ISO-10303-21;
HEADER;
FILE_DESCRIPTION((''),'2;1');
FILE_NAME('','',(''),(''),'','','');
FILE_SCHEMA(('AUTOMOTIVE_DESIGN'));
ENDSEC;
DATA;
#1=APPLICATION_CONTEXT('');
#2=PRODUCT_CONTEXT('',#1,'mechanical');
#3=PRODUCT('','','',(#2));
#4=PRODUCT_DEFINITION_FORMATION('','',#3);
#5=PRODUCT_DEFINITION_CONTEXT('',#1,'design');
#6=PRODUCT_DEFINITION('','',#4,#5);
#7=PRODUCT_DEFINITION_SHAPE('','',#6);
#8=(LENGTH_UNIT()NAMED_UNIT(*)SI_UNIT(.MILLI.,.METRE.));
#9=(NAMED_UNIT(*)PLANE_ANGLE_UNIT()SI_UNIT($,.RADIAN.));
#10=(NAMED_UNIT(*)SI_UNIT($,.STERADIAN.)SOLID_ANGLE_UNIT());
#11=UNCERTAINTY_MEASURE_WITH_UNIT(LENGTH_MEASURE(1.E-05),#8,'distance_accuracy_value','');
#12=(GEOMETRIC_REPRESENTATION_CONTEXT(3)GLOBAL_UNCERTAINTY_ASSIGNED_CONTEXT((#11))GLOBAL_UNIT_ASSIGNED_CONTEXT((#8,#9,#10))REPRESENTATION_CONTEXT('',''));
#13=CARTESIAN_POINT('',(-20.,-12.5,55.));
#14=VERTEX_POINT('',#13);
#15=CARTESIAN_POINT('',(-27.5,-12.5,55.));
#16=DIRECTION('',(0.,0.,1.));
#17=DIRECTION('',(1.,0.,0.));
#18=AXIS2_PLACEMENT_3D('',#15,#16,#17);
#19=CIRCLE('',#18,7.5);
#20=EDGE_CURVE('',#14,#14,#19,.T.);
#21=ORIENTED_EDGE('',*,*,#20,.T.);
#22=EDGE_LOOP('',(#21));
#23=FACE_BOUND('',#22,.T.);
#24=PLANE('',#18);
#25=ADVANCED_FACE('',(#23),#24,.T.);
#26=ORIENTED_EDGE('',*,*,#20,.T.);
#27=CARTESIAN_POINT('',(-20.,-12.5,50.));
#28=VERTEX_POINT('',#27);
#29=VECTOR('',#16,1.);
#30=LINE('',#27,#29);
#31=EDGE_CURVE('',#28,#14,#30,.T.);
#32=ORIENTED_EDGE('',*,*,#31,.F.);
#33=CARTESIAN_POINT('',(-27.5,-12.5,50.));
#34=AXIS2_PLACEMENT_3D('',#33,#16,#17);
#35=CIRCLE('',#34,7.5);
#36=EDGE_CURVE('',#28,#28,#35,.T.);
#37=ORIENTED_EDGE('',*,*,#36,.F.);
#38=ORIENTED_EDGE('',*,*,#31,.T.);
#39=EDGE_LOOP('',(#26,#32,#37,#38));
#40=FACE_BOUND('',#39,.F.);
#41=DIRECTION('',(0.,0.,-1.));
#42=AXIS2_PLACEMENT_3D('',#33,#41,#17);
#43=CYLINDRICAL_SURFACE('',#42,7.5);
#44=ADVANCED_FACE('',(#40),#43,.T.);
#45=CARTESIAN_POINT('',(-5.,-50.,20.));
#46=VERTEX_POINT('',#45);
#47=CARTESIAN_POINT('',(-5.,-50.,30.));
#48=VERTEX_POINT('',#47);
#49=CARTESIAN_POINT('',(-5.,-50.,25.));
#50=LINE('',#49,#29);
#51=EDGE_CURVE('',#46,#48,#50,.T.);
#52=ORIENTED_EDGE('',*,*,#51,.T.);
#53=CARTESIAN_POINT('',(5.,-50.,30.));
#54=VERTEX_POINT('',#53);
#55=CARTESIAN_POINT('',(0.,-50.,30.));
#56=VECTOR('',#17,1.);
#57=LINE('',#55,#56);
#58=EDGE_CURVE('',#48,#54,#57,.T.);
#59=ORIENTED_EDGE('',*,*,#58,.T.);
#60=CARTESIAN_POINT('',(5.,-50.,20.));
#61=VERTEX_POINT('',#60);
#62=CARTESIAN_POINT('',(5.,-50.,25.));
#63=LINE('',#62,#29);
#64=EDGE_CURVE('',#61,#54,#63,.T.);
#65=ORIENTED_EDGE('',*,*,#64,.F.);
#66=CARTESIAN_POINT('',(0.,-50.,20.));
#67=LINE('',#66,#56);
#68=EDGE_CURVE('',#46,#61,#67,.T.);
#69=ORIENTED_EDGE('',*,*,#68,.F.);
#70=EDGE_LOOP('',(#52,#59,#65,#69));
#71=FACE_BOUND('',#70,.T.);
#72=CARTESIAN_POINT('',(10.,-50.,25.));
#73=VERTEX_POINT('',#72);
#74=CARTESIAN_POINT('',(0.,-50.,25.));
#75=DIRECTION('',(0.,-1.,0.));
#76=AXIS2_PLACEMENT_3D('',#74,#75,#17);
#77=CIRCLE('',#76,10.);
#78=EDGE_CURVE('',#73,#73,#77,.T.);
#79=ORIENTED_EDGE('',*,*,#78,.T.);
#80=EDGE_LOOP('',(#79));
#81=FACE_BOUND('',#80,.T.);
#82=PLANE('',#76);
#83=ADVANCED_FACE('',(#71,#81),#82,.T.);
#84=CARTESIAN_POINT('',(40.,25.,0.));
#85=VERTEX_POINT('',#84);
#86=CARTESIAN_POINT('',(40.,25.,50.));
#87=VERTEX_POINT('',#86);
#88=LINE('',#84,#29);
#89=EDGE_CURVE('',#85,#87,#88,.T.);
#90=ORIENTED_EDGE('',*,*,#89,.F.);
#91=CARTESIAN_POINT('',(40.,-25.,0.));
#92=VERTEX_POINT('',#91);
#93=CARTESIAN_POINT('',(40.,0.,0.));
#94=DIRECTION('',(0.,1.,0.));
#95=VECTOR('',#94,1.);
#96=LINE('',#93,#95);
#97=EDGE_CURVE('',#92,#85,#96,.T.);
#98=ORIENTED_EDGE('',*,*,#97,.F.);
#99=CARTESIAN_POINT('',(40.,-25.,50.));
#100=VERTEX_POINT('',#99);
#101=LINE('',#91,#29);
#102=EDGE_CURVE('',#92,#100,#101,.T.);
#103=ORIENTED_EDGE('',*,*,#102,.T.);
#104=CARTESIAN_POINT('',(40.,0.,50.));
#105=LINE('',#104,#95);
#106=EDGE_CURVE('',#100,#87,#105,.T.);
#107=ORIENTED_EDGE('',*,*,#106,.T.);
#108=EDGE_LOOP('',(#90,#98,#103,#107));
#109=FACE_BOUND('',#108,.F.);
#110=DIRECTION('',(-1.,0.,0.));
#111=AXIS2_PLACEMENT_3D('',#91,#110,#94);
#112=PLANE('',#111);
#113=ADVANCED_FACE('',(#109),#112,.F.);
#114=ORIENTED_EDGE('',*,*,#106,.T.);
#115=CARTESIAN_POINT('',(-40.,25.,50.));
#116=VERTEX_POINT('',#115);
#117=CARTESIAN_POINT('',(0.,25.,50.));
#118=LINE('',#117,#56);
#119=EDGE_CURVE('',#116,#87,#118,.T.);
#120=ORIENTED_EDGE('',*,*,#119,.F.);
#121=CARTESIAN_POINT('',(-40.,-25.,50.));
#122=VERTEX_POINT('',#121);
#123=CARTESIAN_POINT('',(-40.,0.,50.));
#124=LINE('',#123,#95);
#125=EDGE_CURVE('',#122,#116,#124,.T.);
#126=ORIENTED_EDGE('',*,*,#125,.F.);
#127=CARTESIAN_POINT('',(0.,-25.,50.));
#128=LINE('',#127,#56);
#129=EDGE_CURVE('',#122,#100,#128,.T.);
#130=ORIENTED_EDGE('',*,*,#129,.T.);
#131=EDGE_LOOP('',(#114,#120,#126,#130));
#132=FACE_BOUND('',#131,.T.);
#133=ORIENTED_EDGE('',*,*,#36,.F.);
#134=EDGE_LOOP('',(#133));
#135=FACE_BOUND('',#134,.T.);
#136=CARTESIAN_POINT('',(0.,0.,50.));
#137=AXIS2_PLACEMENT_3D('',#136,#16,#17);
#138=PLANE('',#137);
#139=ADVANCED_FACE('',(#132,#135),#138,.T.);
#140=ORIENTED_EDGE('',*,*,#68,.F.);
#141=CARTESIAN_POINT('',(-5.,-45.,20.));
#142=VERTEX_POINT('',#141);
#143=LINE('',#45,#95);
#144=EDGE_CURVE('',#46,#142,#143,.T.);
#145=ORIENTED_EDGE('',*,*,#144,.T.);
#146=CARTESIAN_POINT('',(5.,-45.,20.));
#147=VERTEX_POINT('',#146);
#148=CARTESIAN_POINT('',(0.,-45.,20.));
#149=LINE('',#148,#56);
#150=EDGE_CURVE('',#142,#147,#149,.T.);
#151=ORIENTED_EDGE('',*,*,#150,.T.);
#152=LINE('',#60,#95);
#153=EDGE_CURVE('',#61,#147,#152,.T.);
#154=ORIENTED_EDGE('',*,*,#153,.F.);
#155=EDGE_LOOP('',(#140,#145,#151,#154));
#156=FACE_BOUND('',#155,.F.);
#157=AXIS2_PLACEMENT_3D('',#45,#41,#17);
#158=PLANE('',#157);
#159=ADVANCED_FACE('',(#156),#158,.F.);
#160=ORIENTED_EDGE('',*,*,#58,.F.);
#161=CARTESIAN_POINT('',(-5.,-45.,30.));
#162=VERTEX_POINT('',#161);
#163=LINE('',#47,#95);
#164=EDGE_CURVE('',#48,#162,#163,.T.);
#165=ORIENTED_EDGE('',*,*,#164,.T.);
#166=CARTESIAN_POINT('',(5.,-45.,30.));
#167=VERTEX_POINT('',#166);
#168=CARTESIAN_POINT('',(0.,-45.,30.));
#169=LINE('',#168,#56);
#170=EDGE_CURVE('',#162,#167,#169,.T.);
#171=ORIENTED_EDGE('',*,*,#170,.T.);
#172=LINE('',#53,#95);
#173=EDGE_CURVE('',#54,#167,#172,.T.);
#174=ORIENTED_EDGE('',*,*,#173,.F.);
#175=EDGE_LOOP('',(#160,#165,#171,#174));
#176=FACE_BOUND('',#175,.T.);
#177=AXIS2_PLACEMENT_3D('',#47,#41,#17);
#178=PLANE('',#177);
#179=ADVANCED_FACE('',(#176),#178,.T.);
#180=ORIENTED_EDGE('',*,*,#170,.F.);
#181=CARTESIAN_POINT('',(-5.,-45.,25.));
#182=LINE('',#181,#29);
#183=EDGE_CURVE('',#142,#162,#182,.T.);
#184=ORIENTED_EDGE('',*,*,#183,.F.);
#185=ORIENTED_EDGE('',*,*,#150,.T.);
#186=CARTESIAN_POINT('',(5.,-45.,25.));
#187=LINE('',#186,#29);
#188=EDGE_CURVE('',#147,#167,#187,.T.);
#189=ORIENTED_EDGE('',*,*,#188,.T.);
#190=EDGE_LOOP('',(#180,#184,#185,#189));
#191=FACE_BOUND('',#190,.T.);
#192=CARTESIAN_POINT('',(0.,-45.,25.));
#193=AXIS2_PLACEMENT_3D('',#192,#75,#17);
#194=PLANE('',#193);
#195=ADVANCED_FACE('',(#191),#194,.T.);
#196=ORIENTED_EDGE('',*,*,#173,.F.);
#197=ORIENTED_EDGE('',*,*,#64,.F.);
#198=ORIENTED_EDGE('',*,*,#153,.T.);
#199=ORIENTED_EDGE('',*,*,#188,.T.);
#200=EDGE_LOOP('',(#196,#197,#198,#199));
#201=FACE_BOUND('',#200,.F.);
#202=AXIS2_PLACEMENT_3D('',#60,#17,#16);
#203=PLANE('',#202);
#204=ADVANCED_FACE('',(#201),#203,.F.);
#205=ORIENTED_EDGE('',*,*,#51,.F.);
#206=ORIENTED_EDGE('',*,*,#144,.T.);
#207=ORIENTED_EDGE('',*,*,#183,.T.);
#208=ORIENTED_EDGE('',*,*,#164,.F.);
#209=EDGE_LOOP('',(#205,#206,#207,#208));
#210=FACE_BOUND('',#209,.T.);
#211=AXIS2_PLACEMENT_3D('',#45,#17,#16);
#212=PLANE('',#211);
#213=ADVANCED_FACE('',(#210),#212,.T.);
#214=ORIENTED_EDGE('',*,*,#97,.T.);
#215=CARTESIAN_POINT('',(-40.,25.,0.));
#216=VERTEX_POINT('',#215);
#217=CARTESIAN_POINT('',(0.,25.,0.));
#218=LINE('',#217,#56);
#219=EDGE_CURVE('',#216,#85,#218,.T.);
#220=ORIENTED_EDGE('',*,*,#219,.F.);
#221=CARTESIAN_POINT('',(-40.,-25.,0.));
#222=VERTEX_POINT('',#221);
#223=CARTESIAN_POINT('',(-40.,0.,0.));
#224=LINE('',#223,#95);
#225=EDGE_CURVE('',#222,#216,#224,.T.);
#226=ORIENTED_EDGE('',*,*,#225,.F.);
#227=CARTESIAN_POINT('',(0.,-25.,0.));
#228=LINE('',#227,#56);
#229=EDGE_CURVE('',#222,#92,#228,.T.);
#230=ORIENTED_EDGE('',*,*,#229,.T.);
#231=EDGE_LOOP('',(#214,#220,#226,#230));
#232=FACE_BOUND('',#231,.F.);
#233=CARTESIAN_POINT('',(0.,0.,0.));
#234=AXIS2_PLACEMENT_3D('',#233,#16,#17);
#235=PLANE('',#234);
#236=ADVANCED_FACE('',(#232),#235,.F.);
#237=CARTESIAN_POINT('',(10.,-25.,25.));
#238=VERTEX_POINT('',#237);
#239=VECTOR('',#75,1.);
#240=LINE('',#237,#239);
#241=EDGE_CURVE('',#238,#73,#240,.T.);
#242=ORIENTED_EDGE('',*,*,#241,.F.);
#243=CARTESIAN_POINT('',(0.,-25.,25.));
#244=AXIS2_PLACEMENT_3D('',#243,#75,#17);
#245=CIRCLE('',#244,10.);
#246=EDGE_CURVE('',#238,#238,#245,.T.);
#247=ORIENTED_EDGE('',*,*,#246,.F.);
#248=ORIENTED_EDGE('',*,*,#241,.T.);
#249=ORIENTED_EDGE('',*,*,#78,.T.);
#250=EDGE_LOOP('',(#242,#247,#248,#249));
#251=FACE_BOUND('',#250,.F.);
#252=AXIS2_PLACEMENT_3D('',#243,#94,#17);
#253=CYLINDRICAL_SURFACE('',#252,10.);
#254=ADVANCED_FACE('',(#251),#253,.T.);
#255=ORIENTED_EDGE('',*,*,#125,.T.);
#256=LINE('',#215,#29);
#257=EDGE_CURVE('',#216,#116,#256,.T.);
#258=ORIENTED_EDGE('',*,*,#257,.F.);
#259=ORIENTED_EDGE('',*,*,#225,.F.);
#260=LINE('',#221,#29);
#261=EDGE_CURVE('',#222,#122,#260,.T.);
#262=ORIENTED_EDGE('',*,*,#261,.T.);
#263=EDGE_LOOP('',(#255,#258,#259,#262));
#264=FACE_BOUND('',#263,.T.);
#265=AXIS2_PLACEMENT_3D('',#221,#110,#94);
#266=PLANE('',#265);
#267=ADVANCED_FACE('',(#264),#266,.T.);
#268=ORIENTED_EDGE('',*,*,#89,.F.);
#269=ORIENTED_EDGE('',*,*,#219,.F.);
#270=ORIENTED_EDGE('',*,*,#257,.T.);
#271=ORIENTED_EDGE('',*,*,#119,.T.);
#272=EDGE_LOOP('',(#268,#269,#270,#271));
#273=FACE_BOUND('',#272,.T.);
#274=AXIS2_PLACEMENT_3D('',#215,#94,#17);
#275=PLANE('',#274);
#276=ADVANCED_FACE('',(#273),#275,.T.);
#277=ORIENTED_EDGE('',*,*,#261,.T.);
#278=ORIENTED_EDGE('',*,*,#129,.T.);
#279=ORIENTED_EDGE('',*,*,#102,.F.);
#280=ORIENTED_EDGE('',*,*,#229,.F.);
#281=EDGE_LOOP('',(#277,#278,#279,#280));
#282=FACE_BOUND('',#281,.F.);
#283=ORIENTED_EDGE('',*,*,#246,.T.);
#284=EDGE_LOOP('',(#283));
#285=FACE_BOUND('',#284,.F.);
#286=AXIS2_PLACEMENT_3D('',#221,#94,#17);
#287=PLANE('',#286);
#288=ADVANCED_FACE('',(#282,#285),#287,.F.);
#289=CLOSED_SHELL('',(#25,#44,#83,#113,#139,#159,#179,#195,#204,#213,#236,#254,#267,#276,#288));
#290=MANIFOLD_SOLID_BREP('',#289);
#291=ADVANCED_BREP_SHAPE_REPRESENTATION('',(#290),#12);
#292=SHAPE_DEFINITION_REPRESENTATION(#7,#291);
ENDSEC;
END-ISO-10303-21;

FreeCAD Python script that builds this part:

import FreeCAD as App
import Part
import Sketcher

doc = App.newDocument("Part")
body = doc.addObject("PartDesign::Body", "Body")

sketch1 = doc.addObject("Sketcher::SketchObject", "Sketch")
body.addObject(sketch1)
sketch1.AttachmentSupport = (doc.XY_Plane, [""])
sketch1.MapMode = "FlatFace"
sketch1.addGeometry([
    Part.LineSegment(App.Vector(-40, 25, 0), App.Vector(-40, -25, 0)),
    Part.LineSegment(App.Vector(-40, -25, 0), App.Vector(40, -25, 0)),
    Part.LineSegment(App.Vector(40, -25, 0), App.Vector(40, 25, 0)),
    Part.LineSegment(App.Vector(40, 25, 0), App.Vector(-40, 25, 0)),
], False)
sketch1.addConstraint([
    Sketcher.Constraint("Coincident", 0, 2, 1, 1),
    Sketcher.Constraint("Coincident", 1, 2, 2, 1),
    Sketcher.Constraint("Coincident", 2, 2, 3, 1),
    Sketcher.Constraint("Coincident", 3, 2, 0, 1),
    Sketcher.Constraint("Vertical", 0),
    Sketcher.Constraint("Horizontal", 1),
    Sketcher.Constraint("Vertical", 2),
    Sketcher.Constraint("Horizontal", 3),
    Sketcher.Constraint("Symmetric", 0, 2, 2, 2, -1, 1),
    Sketcher.Constraint("DistanceX", 1, 1, 1, 2, 80.0),
    Sketcher.Constraint("DistanceY", 0, 2, 0, 1, 50.0),
])
pad1 = doc.addObject("PartDesign::Pad", "Pad")
body.addObject(pad1)
pad1.Profile = sketch1
pad1.Length = 50

sketch2 = doc.addObject("Sketcher::SketchObject", "Sketch001")
body.addObject(sketch2)
sketch2.AttachmentSupport = (doc.XZ_Plane, [""])
sketch2.MapMode = "FlatFace"
sketch2.AttachmentOffset = App.Placement(App.Vector(0, 0, 25), App.Rotation())
sketch2.addGeometry(Part.Circle(App.Vector(0, 25, 0), App.Vector(0, 0, 1), 10), False)
sketch2.addConstraint([
    Sketcher.Constraint("PointOnObject", 0, 3, -2),
    Sketcher.Constraint("Diameter", 0, 20.0),
    Sketcher.Constraint("DistanceY", -1, 1, 0, 3, 25.0),
])
pad2 = doc.addObject("PartDesign::Pad", "Pad001")
body.addObject(pad2)
pad2.Profile = sketch2
pad2.Length = 25

sketch3 = doc.addObject("Sketcher::SketchObject", "Sketch002")
body.addObject(sketch3)
sketch3.AttachmentSupport = (doc.XZ_Plane, [""])
sketch3.MapMode = "FlatFace"
sketch3.AttachmentOffset = App.Placement(App.Vector(0, 0, 50), App.Rotation())
sketch3.addGeometry([
    Part.LineSegment(App.Vector(-5, 30, 0), App.Vector(-5, 20, 0)),
    Part.LineSegment(App.Vector(-5, 20, 0), App.Vector(5, 20, 0)),
    Part.LineSegment(App.Vector(5, 20, 0), App.Vector(5, 30, 0)),
    Part.LineSegment(App.Vector(5, 30, 0), App.Vector(-5, 30, 0)),
], False)
sketch3.addConstraint([
    Sketcher.Constraint("Coincident", 0, 2, 1, 1),
    Sketcher.Constraint("Coincident", 1, 2, 2, 1),
    Sketcher.Constraint("Coincident", 2, 2, 3, 1),
    Sketcher.Constraint("Coincident", 3, 2, 0, 1),
    Sketcher.Constraint("Vertical", 0),
    Sketcher.Constraint("Horizontal", 1),
    Sketcher.Constraint("Vertical", 2),
    Sketcher.Constraint("Horizontal", 3),
    Sketcher.Constraint("Equal", 3, 0),
    Sketcher.Constraint("DistanceX", 1, 1, 1, 2, 10.0),
    Sketcher.Constraint("DistanceX", 0, 2, -1, 1, 5.0),
    Sketcher.Constraint("DistanceY", -1, 1, 0, 2, 20.0),
])
pocket1 = doc.addObject("PartDesign::Pocket", "Pocket")
body.addObject(pocket1)
pocket1.Profile = sketch3
pocket1.Length = 5

sketch4 = doc.addObject("Sketcher::SketchObject", "Sketch003")
body.addObject(sketch4)
sketch4.AttachmentSupport = (doc.XY_Plane, [""])
sketch4.MapMode = "FlatFace"
sketch4.AttachmentOffset = App.Placement(App.Vector(0, 0, 50), App.Rotation())
sketch4.addGeometry(Part.Circle(App.Vector(-28, -12, 0), App.Vector(0, 0, 1), 8), False)
sketch4.addConstraint([
    Sketcher.Constraint("Diameter", 0, 15.0),
    Sketcher.Constraint("DistanceX", 0, 3, -1, 1, 27.5),
    Sketcher.Constraint("DistanceY", 0, 3, -1, 1, 12.5),
])
pad3 = doc.addObject("PartDesign::Pad", "Pad002")
body.addObject(pad3)
pad3.Profile = sketch4
pad3.Length = 5

doc.recompute()
